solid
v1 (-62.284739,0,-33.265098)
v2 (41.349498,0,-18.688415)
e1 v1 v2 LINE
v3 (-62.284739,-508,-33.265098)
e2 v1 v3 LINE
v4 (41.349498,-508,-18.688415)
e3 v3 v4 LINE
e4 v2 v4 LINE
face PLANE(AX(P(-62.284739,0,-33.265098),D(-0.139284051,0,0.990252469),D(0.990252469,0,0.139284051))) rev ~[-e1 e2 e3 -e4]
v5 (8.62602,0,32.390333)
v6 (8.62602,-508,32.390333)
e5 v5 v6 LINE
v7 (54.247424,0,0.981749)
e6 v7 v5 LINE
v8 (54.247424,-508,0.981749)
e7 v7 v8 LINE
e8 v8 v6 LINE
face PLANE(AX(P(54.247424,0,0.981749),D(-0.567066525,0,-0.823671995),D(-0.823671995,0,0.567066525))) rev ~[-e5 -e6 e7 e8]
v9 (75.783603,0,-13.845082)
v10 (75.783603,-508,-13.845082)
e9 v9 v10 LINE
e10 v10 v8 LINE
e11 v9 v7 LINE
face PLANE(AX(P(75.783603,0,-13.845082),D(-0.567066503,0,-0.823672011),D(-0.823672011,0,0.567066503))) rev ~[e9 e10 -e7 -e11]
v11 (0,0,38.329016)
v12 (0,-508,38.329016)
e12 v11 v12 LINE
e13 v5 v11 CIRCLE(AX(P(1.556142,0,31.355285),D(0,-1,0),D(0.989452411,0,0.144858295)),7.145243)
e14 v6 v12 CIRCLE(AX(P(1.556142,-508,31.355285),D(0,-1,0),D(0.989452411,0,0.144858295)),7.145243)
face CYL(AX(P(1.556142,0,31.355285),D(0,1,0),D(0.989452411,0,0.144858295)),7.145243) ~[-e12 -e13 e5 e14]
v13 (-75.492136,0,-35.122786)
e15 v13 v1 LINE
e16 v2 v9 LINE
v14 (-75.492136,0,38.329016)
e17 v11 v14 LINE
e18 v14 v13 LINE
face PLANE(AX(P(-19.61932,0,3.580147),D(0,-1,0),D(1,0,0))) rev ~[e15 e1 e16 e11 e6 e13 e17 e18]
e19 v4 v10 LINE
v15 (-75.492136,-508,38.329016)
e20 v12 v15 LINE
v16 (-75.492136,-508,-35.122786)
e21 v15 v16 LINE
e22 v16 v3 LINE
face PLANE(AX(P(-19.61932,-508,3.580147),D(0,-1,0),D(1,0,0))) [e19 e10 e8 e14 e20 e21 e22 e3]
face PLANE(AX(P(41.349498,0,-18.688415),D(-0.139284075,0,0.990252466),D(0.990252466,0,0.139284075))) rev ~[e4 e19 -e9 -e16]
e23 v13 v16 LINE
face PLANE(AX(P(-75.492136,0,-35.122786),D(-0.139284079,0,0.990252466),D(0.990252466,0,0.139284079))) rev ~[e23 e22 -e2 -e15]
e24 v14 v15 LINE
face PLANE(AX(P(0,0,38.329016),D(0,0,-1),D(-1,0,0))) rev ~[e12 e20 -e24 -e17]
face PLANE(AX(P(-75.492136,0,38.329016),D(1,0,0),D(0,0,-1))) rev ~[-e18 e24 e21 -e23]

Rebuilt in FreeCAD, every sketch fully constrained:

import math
import FreeCAD as App
import Part
import Sketcher

doc = App.newDocument("Part")
params = doc.addObject("Spreadsheet::Sheet", "Params")
for row, (alias, value) in enumerate([
    ("pad1_length", "20 in"),
], start=1):
    params.set(f"A{row}", alias)
    params.set(f"B{row}", "=" + value)
    params.setAlias(f"B{row}", alias)

body = doc.addObject("PartDesign::Body", "Body")

# Sketch on XZ plane
sketch1 = doc.addObject("Sketcher::SketchObject", "Sketch")
body.addObject(sketch1)
sketch1.AttachmentSupport = (doc.XZ_Plane, [""])
sketch1.MapMode = "FlatFace"
sketch1.addGeometry(Part.LineSegment(App.Vector(0, 38, 0), App.Vector(-75, 38, 0)), False)
sketch1.addGeometry(Part.LineSegment(App.Vector(-75, 38, 0), App.Vector(-75, -35, 0)), False)
sketch1.addGeometry(Part.LineSegment(App.Vector(-75, -35, 0), App.Vector(-62, -33, 0)), False)
sketch1.addGeometry(Part.LineSegment(App.Vector(-62, -33, 0), App.Vector(41, -19, 0)), False)
sketch1.addGeometry(Part.LineSegment(App.Vector(41, -19, 0), App.Vector(76, -14, 0)), False)
sketch1.addGeometry(Part.LineSegment(App.Vector(76, -14, 0), App.Vector(54, 1, 0)), False)
sketch1.addGeometry(Part.LineSegment(App.Vector(54, 1, 0), App.Vector(9, 32, 0)), False)
sketch1.addGeometry(Part.ArcOfCircle(Part.Circle(App.Vector(2, 31, 0), App.Vector(0, 0, 1), 7), math.radians(8), math.radians(103)), False)
sketch1.addConstraint(Sketcher.Constraint("Coincident", 0, 2, 1, 1))
sketch1.addConstraint(Sketcher.Constraint("Coincident", 1, 2, 2, 1))
sketch1.addConstraint(Sketcher.Constraint("Coincident", 2, 2, 3, 1))
sketch1.addConstraint(Sketcher.Constraint("Coincident", 3, 2, 4, 1))
sketch1.addConstraint(Sketcher.Constraint("Coincident", 4, 2, 5, 1))
sketch1.addConstraint(Sketcher.Constraint("Coincident", 5, 2, 6, 1))
sketch1.addConstraint(Sketcher.Constraint("Coincident", 6, 2, 7, 1))
sketch1.addConstraint(Sketcher.Constraint("Coincident", 7, 2, 0, 1))
sketch1.addConstraint(Sketcher.Constraint("Horizontal", 0))
sketch1.addConstraint(Sketcher.Constraint("Vertical", 1))
sketch1.addConstraint(Sketcher.Constraint("PointOnObject", 7, 2, -2))
sketch1.addConstraint(Sketcher.Constraint("Parallel", 2, 3))
sketch1.addConstraint(Sketcher.Constraint("Parallel", 3, 4))
sketch1.addConstraint(Sketcher.Constraint("Parallel", 5, 6))
sketch1.addConstraint(Sketcher.Constraint("DistanceY", 1, 2, 1, 1, 73.451802))
sketch1.addConstraint(Sketcher.Constraint("Radius", 7, 7.145243))
sketch1.addConstraint(Sketcher.Constraint("DistanceY", 2, 2, -1, 1, 33.265098))
sketch1.addConstraint(Sketcher.Constraint("DistanceY", 3, 2, 7, 3, 50.0437))
sketch1.addConstraint(Sketcher.Constraint("Distance", 3, 104.654359))
sketch1.addConstraint(Sketcher.Constraint("Distance", 6, 55.387829))
sketch1.addConstraint(Sketcher.Constraint("DistanceX", 0, 2, 0, 1, 75.492136))
sketch1.addConstraint(Sketcher.Constraint("DistanceX", 2, 2, -1, 1, 62.284739))
sketch1.addConstraint(Sketcher.Constraint("DistanceY", -1, 1, 5, 2, 0.981749))
sketch1.addConstraint(Sketcher.Constraint("DistanceX", -1, 1, 6, 2, 8.62602))
sketch1.addConstraint(Sketcher.Constraint("DistanceX", 0, 2, 7, 3, 77.048278))
pad1 = doc.addObject("PartDesign::Pad", "Pad")
body.addObject(pad1)
pad1.Profile = sketch1
pad1.setExpression("Length", "Params.pad1_length")

doc.recompute()
